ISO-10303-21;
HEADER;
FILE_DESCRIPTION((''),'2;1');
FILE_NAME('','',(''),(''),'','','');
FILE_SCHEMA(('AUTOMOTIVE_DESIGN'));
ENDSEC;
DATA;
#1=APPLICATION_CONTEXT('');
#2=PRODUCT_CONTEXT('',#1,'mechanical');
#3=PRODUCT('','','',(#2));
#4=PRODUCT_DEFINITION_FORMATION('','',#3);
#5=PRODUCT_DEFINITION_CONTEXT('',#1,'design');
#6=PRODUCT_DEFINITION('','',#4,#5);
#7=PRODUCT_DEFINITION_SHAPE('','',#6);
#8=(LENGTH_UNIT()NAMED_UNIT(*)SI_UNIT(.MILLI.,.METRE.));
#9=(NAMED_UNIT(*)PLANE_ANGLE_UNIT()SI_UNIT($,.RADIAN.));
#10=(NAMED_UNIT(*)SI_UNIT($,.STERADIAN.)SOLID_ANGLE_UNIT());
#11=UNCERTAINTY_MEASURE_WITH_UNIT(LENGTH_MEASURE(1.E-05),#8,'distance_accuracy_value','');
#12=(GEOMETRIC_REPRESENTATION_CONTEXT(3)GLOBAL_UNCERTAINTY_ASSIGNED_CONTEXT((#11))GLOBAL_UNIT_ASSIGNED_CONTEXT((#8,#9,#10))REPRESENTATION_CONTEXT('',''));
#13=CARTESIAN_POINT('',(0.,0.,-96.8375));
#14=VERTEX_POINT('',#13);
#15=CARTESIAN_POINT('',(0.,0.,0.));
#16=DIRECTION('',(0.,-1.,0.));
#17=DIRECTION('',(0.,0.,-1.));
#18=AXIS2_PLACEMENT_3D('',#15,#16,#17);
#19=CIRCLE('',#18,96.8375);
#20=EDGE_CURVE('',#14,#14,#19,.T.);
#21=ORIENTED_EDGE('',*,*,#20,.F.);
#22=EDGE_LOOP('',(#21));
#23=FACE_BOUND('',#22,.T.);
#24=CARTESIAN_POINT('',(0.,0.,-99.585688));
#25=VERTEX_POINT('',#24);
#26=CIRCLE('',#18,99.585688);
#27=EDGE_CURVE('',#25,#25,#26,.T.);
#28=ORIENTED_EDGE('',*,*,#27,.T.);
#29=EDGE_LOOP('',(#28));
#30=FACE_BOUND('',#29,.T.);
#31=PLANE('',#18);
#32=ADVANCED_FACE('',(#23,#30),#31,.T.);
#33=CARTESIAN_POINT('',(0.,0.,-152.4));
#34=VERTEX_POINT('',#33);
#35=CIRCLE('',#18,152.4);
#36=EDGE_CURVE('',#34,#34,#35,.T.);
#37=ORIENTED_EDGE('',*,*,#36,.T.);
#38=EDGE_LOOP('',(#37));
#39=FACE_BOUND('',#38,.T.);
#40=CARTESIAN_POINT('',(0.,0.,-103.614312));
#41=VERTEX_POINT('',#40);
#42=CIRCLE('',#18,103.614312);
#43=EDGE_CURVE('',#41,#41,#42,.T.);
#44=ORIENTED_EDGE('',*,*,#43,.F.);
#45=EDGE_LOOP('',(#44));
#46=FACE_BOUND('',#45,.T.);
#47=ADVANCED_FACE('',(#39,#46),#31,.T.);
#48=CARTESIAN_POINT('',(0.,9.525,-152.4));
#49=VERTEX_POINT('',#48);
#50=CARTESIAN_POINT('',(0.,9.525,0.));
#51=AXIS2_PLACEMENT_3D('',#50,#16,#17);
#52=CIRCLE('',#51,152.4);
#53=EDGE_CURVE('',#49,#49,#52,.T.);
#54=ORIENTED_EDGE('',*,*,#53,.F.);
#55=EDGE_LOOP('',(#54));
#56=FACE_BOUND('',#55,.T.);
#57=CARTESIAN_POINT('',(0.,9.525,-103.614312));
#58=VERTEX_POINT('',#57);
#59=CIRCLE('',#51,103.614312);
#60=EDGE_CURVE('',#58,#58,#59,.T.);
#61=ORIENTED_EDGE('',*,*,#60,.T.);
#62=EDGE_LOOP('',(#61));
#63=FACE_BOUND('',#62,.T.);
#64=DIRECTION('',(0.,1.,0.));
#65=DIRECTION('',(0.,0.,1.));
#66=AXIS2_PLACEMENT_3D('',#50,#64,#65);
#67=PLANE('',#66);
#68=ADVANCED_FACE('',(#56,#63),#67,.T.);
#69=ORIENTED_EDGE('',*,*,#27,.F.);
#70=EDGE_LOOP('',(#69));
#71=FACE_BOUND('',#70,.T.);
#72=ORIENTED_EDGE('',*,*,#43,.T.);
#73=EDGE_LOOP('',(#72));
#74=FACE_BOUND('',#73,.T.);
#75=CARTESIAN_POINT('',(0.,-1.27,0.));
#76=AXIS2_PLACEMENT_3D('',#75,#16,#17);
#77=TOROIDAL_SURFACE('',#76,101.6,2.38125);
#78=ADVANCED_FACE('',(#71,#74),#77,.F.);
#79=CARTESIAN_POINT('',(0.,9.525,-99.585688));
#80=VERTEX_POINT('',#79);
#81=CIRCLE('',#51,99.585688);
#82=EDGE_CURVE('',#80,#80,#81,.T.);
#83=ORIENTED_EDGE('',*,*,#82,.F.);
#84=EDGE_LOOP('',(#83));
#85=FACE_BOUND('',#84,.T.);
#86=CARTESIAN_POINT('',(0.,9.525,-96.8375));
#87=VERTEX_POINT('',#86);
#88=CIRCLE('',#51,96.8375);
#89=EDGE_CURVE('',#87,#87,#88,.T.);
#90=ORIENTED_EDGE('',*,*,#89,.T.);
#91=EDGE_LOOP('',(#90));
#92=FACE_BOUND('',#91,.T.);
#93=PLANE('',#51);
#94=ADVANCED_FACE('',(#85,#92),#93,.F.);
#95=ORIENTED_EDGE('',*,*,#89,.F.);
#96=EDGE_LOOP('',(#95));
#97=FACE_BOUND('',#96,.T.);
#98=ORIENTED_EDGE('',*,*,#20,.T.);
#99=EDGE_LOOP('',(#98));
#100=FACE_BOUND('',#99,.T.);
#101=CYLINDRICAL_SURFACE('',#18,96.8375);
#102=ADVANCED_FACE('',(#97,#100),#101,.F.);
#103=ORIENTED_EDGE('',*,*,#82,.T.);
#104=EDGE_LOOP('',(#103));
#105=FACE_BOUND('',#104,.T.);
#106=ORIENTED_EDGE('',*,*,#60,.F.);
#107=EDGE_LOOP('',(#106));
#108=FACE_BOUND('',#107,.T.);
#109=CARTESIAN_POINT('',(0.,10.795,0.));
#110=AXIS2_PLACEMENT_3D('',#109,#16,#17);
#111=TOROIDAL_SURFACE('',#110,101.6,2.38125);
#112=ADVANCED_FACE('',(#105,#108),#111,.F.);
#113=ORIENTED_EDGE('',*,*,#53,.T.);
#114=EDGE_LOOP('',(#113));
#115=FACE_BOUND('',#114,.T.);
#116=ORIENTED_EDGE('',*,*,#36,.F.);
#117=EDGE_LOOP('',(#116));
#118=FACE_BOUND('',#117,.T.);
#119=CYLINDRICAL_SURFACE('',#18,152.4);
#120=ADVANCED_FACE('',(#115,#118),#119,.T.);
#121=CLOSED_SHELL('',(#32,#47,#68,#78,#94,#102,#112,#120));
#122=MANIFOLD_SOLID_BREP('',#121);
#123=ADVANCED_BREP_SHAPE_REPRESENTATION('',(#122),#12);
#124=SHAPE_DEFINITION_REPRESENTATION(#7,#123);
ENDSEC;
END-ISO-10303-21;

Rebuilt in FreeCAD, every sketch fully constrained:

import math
import FreeCAD as App
import Part
import Sketcher
Q = App.Units.Quantity

doc = App.newDocument("Part")
body = doc.addObject("PartDesign::Body", "Body")

sketch1 = body.newObject("Sketcher::SketchObject", "Sketch")
sketch1.AttachmentSupport = (doc.getObject("XY_Plane"), [""])
sketch1.MapMode = "FlatFace"
sketch1.addGeometry([
    Part.LineSegment(App.Vector(-99.6, 0, 0), App.Vector(-96.8, 0, 0)),
    Part.LineSegment(App.Vector(-96.8, 0, 0), App.Vector(-96.8, 9.5, 0)),
    Part.LineSegment(App.Vector(-96.8, 9.5, 0), App.Vector(-99.6, 9.5, 0)),
    Part.ArcOfCircle(Part.Circle(App.Vector(-101.6, 10.8, 0), App.Vector(0, 0, 1), 2.4), math.radians(-148), math.radians(-32)),
    Part.LineSegment(App.Vector(-103.6, 9.5, 0), App.Vector(-152.4, 9.5, 0)),
    Part.LineSegment(App.Vector(-152.4, 9.5, 0), App.Vector(-152.4, 0, 0)),
    Part.LineSegment(App.Vector(-152.4, 0, 0), App.Vector(-103.6, 0, 0)),
    Part.ArcOfCircle(Part.Circle(App.Vector(-101.6, -1.3, 0), App.Vector(0, 0, 1), 2.4), math.radians(32), math.radians(148)),
], False)
sketch1.addConstraint([
    Sketcher.Constraint("Coincident", 0, 2, 1, 1),
    Sketcher.Constraint("Coincident", 1, 2, 2, 1),
    Sketcher.Constraint("Coincident", 2, 2, 3, 2),
    Sketcher.Constraint("Coincident", 3, 1, 4, 1),
    Sketcher.Constraint("Coincident", 4, 2, 5, 1),
    Sketcher.Constraint("Coincident", 5, 2, 6, 1),
    Sketcher.Constraint("Coincident", 6, 2, 7, 2),
    Sketcher.Constraint("Coincident", 7, 1, 0, 1),
    Sketcher.Constraint("Horizontal", 0),
    Sketcher.Constraint("Vertical", 1),
    Sketcher.Constraint("Horizontal", 2),
    Sketcher.Constraint("Horizontal", 4),
    Sketcher.Constraint("Vertical", 5),
    Sketcher.Constraint("Horizontal", 6),
    Sketcher.Constraint("Equal", 3, 7),
    Sketcher.Constraint("PointOnObject", 0, 2, -1),
    Sketcher.Constraint("PointOnObject", 5, 2, -1),
    Sketcher.Constraint("Horizontal", 2, 2, 3, 1),
    Sketcher.Constraint("Vertical", 3, 3, 7, 3),
    Sketcher.Constraint("Vertical", 3, 1, 6, 2),
    Sketcher.Constraint("DistanceX", 3, 3, -1, 1, Q("4 in")),
    Sketcher.Constraint("DistanceX", 4, 2, -1, 1, Q("6 in")),
    Sketcher.Constraint("Radius", 3, Q("0.09375 in")),
    Sketcher.Constraint("DistanceY", 1, 1, 1, 2, Q("0.375 in")),
    Sketcher.Constraint("DistanceY", 7, 3, -1, 1, Q("0.05 in")),
    Sketcher.Constraint("DistanceX", 0, 2, -1, 1, Q("3.8125 in")),
])
revolution = body.newObject("PartDesign::Revolution", "Revolution")
revolution.Profile = sketch1
revolution.ReferenceAxis = (sketch1, ["V_Axis"])
revolution.Angle = 360

doc.recompute()
